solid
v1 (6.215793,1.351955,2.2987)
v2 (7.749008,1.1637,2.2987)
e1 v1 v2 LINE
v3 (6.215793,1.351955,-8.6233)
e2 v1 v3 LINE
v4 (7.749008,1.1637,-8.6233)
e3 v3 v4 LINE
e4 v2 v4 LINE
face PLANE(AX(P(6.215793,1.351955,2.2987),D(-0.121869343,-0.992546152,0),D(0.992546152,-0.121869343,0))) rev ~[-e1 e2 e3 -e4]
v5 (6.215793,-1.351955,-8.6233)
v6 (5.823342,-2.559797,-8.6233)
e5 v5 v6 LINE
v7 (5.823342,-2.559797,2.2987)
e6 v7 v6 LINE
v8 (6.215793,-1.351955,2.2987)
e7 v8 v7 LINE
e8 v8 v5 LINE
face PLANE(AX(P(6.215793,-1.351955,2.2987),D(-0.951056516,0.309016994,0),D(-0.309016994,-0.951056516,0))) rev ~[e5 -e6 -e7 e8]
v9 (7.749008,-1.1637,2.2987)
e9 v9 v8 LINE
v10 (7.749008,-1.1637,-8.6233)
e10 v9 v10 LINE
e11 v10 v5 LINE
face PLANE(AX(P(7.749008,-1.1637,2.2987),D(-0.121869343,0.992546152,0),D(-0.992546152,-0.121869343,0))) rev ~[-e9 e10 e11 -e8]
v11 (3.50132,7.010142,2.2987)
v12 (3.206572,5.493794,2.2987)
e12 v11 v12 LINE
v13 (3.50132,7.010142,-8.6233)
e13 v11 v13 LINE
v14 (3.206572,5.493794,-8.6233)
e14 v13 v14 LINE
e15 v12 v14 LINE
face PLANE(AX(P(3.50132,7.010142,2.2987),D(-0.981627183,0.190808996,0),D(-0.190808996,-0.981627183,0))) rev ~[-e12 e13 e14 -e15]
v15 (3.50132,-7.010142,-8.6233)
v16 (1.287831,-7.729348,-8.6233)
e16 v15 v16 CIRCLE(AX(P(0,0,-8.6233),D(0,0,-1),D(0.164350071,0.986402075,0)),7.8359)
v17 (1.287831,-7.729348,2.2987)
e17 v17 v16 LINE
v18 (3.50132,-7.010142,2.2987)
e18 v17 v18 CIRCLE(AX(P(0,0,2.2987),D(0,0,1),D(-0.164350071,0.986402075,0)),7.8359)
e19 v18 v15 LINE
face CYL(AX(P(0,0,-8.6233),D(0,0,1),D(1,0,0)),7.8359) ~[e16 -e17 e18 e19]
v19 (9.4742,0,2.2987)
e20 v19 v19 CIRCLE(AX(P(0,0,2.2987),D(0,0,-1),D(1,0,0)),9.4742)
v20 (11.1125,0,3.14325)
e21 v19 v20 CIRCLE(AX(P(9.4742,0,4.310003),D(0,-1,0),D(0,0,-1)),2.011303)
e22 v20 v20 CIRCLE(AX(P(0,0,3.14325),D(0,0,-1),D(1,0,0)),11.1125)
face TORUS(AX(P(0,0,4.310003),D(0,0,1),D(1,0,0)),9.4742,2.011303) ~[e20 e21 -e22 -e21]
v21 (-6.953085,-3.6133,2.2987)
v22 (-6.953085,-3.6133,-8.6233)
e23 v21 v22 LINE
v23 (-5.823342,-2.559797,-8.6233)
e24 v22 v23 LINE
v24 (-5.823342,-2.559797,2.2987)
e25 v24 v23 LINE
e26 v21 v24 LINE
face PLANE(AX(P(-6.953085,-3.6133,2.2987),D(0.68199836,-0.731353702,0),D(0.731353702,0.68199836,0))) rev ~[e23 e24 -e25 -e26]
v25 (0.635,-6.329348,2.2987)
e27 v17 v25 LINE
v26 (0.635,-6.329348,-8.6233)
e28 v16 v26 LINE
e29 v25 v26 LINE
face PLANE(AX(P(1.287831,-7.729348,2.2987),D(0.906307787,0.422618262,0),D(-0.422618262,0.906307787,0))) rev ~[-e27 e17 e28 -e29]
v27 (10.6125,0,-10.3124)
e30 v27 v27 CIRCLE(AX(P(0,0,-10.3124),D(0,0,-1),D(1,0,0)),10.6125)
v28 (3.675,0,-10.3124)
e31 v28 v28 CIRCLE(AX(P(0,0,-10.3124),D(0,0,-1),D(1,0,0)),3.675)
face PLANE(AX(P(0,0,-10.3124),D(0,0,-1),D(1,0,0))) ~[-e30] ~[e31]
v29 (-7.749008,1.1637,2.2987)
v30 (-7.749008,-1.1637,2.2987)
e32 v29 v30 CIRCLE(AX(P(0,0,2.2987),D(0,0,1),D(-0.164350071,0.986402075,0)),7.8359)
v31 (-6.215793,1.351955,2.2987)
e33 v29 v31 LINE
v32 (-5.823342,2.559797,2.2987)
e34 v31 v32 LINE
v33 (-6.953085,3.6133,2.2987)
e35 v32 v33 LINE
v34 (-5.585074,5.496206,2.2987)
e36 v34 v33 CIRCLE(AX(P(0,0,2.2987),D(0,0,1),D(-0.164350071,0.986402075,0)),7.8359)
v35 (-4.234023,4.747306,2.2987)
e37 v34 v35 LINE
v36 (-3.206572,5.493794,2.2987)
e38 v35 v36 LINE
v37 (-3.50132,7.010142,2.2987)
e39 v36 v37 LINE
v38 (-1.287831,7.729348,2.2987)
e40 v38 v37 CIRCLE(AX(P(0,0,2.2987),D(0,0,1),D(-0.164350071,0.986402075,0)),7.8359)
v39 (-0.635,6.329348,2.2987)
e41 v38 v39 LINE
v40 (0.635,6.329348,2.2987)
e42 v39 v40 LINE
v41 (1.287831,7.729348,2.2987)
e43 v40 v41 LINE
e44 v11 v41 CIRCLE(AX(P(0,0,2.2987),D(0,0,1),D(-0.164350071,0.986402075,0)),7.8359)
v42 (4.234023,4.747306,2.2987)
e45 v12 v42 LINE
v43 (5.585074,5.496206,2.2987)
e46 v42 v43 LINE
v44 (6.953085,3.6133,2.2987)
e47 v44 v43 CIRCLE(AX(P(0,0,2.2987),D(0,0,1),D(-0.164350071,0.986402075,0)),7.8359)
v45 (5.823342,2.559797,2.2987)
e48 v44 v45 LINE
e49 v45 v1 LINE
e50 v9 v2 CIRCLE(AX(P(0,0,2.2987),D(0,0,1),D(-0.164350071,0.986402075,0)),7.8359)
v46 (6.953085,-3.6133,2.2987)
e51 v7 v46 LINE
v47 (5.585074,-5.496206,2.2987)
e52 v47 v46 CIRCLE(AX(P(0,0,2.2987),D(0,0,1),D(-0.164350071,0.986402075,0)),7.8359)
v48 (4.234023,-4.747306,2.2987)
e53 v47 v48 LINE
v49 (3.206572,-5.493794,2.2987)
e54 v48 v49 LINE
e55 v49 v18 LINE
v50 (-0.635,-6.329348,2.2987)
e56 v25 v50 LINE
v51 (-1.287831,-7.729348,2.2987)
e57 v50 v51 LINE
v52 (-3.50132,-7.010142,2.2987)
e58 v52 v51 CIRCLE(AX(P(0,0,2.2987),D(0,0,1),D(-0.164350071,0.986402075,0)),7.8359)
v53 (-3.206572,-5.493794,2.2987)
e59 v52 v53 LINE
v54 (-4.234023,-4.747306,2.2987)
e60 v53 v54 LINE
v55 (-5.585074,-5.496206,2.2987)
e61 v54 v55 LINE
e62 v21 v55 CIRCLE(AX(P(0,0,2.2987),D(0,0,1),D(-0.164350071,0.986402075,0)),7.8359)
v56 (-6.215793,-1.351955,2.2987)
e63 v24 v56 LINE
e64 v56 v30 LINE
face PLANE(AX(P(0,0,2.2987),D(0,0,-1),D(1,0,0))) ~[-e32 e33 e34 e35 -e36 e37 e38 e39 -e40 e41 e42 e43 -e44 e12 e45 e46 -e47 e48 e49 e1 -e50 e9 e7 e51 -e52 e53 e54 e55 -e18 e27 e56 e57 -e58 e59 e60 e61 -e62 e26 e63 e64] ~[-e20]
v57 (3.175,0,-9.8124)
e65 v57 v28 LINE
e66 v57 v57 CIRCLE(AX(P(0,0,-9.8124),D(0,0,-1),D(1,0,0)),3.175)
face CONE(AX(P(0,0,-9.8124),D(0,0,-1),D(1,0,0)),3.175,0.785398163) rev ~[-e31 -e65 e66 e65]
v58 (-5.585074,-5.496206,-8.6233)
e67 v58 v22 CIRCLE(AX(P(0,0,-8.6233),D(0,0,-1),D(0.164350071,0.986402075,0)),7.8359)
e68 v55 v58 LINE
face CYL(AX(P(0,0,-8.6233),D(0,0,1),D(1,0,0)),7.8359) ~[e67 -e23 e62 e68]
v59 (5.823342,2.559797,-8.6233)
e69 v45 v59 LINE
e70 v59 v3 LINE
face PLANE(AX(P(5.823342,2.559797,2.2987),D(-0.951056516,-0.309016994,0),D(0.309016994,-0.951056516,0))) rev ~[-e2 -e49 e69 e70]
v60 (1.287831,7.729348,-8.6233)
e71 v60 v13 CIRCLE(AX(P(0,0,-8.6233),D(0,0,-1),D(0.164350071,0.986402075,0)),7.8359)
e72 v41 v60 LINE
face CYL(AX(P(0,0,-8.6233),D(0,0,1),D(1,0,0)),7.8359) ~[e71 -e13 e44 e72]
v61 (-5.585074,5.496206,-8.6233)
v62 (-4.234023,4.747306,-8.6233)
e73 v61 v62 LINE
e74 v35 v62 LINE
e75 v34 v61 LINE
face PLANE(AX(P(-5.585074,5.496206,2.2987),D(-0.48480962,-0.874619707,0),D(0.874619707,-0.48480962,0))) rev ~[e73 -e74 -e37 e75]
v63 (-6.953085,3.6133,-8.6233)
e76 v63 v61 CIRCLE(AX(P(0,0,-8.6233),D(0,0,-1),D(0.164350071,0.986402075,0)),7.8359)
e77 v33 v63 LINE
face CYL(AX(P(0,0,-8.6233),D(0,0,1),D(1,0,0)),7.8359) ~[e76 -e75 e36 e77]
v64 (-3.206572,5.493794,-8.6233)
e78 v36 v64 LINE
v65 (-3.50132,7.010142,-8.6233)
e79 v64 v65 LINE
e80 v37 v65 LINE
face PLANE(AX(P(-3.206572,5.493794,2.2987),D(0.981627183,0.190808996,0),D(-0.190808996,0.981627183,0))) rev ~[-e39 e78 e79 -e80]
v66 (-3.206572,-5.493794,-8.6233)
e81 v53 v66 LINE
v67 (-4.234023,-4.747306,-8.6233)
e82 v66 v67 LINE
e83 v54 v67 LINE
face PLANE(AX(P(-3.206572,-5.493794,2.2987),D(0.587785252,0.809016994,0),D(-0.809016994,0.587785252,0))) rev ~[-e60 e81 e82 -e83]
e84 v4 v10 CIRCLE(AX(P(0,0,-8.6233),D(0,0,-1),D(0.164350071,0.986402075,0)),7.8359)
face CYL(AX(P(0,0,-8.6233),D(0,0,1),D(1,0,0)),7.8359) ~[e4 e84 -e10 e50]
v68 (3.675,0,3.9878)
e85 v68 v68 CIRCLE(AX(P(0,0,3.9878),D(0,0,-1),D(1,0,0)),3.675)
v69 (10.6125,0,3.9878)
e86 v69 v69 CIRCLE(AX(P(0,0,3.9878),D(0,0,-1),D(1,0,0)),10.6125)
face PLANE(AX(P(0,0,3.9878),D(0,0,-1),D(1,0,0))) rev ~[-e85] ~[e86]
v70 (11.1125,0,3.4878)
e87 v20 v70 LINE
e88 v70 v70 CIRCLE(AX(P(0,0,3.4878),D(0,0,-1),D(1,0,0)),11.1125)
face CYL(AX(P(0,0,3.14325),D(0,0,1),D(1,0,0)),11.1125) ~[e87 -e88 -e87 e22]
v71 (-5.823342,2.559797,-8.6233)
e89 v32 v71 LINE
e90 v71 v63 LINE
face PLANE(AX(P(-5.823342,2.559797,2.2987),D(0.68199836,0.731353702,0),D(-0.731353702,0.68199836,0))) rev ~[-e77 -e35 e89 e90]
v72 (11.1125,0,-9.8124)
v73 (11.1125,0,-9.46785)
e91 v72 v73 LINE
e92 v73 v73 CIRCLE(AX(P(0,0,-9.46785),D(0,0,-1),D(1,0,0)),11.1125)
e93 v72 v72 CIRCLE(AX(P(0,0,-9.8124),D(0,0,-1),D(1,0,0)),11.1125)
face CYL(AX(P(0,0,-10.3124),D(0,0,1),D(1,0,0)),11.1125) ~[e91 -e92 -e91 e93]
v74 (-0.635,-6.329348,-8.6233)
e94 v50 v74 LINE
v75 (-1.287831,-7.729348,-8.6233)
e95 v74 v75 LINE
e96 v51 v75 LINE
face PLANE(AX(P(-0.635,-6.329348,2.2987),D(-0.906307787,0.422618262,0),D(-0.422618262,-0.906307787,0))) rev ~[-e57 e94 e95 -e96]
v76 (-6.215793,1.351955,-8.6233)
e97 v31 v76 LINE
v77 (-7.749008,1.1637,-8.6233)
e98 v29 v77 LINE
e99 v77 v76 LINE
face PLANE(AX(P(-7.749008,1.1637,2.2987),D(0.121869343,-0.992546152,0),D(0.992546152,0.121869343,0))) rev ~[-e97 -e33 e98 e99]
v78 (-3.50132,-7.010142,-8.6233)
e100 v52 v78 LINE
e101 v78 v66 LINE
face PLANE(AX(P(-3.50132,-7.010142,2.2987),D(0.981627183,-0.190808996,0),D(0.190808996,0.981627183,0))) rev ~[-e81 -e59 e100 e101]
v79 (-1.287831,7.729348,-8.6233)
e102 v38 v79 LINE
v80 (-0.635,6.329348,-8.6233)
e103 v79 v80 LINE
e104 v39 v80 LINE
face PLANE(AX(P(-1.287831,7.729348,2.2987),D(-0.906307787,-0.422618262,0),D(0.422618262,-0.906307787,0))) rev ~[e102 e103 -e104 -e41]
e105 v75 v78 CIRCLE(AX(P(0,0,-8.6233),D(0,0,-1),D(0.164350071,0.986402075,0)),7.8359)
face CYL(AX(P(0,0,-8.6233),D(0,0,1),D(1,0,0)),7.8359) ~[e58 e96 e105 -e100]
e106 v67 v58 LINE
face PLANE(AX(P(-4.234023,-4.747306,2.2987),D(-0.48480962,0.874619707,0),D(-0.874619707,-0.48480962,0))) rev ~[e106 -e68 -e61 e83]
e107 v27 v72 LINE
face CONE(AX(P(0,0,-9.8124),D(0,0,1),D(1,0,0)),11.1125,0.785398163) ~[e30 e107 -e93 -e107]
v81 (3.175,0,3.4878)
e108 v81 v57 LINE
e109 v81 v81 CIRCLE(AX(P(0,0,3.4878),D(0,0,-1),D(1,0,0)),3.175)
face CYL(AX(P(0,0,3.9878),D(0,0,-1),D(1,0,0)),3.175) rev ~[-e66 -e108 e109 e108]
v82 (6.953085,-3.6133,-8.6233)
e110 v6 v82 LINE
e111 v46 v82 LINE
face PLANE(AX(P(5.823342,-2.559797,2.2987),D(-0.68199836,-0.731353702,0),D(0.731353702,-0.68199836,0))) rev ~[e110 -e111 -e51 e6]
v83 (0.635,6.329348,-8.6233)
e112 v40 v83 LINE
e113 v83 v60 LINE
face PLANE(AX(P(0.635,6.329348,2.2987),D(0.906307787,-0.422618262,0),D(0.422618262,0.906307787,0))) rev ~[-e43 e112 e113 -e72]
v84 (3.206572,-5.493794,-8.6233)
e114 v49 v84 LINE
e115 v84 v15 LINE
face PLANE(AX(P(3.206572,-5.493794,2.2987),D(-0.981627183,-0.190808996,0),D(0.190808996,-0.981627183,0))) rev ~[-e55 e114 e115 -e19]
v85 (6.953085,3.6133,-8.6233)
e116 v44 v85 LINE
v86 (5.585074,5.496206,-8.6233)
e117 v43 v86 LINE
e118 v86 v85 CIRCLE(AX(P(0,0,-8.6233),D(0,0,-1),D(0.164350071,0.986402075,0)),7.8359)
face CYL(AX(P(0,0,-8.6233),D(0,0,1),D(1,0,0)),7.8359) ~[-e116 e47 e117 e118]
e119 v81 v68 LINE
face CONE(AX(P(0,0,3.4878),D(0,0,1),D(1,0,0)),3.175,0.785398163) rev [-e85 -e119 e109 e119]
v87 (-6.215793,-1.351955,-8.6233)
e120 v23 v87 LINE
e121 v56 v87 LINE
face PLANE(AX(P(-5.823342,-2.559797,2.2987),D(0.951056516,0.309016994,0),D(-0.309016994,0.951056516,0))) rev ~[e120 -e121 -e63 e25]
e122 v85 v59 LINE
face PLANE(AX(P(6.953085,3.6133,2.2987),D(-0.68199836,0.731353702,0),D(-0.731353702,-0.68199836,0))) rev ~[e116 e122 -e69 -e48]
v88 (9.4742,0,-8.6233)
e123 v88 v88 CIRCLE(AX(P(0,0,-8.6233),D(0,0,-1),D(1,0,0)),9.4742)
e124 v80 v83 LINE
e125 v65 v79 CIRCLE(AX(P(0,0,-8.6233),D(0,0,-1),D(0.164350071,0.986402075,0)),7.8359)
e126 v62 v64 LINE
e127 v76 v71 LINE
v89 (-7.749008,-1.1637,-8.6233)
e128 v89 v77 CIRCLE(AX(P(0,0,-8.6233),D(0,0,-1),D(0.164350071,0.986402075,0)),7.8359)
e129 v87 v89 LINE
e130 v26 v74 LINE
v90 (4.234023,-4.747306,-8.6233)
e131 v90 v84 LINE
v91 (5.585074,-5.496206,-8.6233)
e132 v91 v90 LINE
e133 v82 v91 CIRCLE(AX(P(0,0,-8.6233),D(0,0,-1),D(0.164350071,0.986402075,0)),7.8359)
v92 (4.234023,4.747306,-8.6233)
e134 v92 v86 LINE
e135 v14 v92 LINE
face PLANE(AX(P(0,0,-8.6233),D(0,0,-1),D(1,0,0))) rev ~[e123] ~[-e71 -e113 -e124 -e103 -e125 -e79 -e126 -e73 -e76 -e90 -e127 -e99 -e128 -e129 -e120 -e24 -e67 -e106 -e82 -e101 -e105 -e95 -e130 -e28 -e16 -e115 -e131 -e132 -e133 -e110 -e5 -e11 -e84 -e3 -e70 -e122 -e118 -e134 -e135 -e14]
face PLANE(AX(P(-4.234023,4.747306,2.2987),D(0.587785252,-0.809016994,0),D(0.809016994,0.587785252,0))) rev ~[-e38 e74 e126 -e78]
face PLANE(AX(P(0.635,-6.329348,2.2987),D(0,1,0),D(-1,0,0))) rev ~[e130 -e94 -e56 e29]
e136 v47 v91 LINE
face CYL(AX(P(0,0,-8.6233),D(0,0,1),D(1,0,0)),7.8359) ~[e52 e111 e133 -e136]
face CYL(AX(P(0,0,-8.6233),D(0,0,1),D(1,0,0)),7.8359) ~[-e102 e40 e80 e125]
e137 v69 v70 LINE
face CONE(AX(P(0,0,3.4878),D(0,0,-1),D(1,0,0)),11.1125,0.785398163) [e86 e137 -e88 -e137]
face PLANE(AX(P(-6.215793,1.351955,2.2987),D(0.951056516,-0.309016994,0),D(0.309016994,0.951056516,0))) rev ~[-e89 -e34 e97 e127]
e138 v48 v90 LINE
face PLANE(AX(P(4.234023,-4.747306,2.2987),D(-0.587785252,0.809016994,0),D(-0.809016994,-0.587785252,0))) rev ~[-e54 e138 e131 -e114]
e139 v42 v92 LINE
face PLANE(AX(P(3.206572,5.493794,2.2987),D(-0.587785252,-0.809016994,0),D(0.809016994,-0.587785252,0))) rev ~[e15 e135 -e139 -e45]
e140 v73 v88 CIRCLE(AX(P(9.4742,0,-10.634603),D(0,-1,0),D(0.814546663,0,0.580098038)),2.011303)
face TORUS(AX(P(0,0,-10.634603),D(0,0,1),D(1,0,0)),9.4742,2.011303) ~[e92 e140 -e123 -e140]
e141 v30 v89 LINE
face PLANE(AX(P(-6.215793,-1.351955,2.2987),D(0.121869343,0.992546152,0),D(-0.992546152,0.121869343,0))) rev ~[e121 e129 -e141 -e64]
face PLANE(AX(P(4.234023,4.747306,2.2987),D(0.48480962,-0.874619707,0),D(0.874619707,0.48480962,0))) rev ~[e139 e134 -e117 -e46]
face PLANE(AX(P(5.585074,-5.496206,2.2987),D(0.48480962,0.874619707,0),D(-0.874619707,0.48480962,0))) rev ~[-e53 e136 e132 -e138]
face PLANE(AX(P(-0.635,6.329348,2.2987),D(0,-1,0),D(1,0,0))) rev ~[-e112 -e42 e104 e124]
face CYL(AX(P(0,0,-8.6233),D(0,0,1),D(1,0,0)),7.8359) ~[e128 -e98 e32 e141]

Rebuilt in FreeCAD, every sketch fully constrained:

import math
import FreeCAD as App
import Part
import Sketcher
from FreeCAD import Vector
Q = App.Units.Quantity


def edges_at(feature, points):
    """Names of the edges that pass closest to the given points."""
    edges = feature.Shape.Edges
    near = lambda p: min(range(len(edges)), key=lambda i: edges[i].distToShape(Part.Vertex(*p))[0])
    return sorted({f"Edge{near(p) + 1}" for p in points})

doc = App.newDocument("Part")
body = doc.addObject("PartDesign::Body", "Body")

# Sketch on YZ plane
sketch1 = body.newObject("Sketcher::SketchObject", "Sketch")
sketch1.AttachmentSupport = (doc.getObject("YZ_Plane"), [""])
sketch1.MapMode = "FlatFace"
sketch1.addGeometry([
    Part.LineSegment(Vector(3.2, 4, 0), Vector(3.2, -10.3, 0)),  # 0
    Part.LineSegment(Vector(3.2, -10.3, 0), Vector(11.1, -10.3, 0)),  # 1
    Part.LineSegment(Vector(11.1, -10.3, 0), Vector(11.1, -9.5, 0)),  # 2
    Part.ArcOfCircle(Part.Circle(Vector(9.5, -10.6, 0), Vector(0, 0, 1), 2), math.radians(35), math.radians(90)),  # 3
    Part.LineSegment(Vector(9.5, -8.6, 0), Vector(7.8, -8.6, 0)),  # 4
    Part.LineSegment(Vector(7.8, -8.6, 0), Vector(7.8, 2.3, 0)),  # 5
    Part.LineSegment(Vector(7.8, 2.3, 0), Vector(9.5, 2.3, 0)),  # 6
    Part.ArcOfCircle(Part.Circle(Vector(9.5, 4.3, 0), Vector(0, 0, 1), 2), math.radians(-90), math.radians(-35)),  # 7
    Part.LineSegment(Vector(11.1, 3.1, 0), Vector(11.1, 4, 0)),  # 8
    Part.LineSegment(Vector(11.1, 4, 0), Vector(3.2, 4, 0)),  # 9
], False)
sketch1.addConstraint([
    Sketcher.Constraint("Coincident", 0, 2, 1, 1),
    Sketcher.Constraint("Coincident", 1, 2, 2, 1),
    Sketcher.Constraint("Coincident", 2, 2, 3, 1),
    Sketcher.Constraint("Tangent", 3, 2, 4, 1),
    Sketcher.Constraint("Coincident", 4, 2, 5, 1),
    Sketcher.Constraint("Coincident", 5, 2, 6, 1),
    Sketcher.Constraint("Tangent", 6, 2, 7, 1),
    Sketcher.Constraint("Coincident", 7, 2, 8, 1),
    Sketcher.Constraint("Coincident", 8, 2, 9, 1),
    Sketcher.Constraint("Coincident", 9, 2, 0, 1),
    Sketcher.Constraint("Vertical", 0),
    Sketcher.Constraint("Horizontal", 1),
    Sketcher.Constraint("Vertical", 2),
    Sketcher.Constraint("Horizontal", 4),
    Sketcher.Constraint("Vertical", 5),
    Sketcher.Constraint("Horizontal", 6),
    Sketcher.Constraint("Vertical", 8),
    Sketcher.Constraint("Horizontal", 9),
    Sketcher.Constraint("Equal", 3, 7),
    Sketcher.Constraint("Vertical", 3, 3, 7, 3),
    Sketcher.Constraint("Vertical", 2, 2, 7, 2),
    Sketcher.Constraint("Equal", 2, 8),
    Sketcher.Constraint("DistanceY", 5, 1, 5, 2, Q("0.43 in")),
    Sketcher.Constraint("DistanceX", 1, 1, 1, 2, Q("0.3125 in")),
    Sketcher.Constraint("DistanceY", 0, 2, 0, 1, Q("0.563 in")),
    Sketcher.Constraint("DistanceX", 4, 2, 4, 1, Q("0.0645 in")),
    Sketcher.Constraint("DistanceX", -1, 1, 3, 3, Q("0.373 in")),
    Sketcher.Constraint("DistanceX", -1, 1, 0, 2, Q("0.125 in")),
    Sketcher.Constraint("DistanceY", 0, 2, -1, 1, Q("0.406 in")),
    Sketcher.Constraint("Radius", 3, Q("2.011303 mm")),
])
revolution = body.newObject("PartDesign::Revolution", "Revolution")
revolution.Profile = sketch1
revolution.ReferenceAxis = (sketch1, ["V_Axis"])
revolution.Angle = 360

# Sketch on XY plane
sketch2 = body.newObject("Sketcher::SketchObject", "Sketch001")
sketch2.AttachmentSupport = (doc.getObject("XY_Plane"), [""])
sketch2.MapMode = "FlatFace"
sketch2.AttachmentOffset = App.Placement(Vector(0, 0, 0.0905 * 25.4), App.Rotation())
sketch2.addGeometry([
    Part.LineSegment(Vector(-0.6, 6.3, 0), Vector(0.6, 6.3, 0)),
    Part.LineSegment(Vector(0.6, 6.3, 0), Vector(1.3, 7.7, 0)),
    Part.ArcOfCircle(Part.Circle(Vector(0, 0, 0), Vector(0, 0, 1), 7.8), math.radians(80.54), math.radians(99.46)),
    Part.LineSegment(Vector(-1.3, 7.7, 0), Vector(-0.6, 6.3, 0)),
], False)
sketch2.addConstraint([
    Sketcher.Constraint("Coincident", 0, 2, 1, 1),
    Sketcher.Constraint("Coincident", 1, 2, 2, 1),
    Sketcher.Constraint("Coincident", 2, 2, 3, 1),
    Sketcher.Constraint("Coincident", 3, 2, 0, 1),
    Sketcher.Constraint("Horizontal", 0),
    Sketcher.Constraint("Coincident", 2, 3, -1, 1),
    Sketcher.Constraint("Horizontal", 1, 2, 2, 2),
    Sketcher.Constraint("Equal", 1, 3),
    Sketcher.Constraint("Angle", 1, Q("65 deg")),
    Sketcher.Constraint("DistanceX", 0, 1, 0, 2, Q("0.05 in")),
    Sketcher.Constraint("Radius", 2, Q("0.3085 in")),
    Sketcher.Constraint("DistanceY", 0, 2, 1, 2, Q("1.4 mm")),
])
pocket1 = body.newObject("PartDesign::Pocket", "Pocket")
pocket1.Profile = sketch2
pocket1.Length = Q("0.43 in")
doc.recompute()

polarpattern = body.newObject("PartDesign::PolarPattern", "PolarPattern")
polarpattern.Originals = [pocket1]
polarpattern.Axis = (doc.getObject("Z_Axis"), [""])
polarpattern.Angle = 360
polarpattern.Occurrences = 10
body.Tip = polarpattern
doc.recompute()

chamfer = body.newObject("PartDesign::Chamfer", "Chamfer")
chamfer.Base = (polarpattern, edges_at(polarpattern, [
    (-11.113, 0, -10.312),
    (-3.175, 0, -10.312),
    (-3.175, 0, 3.988),
    (-11.113, 0, 3.988),
]))
chamfer.Size = 0.5

doc.recompute()
